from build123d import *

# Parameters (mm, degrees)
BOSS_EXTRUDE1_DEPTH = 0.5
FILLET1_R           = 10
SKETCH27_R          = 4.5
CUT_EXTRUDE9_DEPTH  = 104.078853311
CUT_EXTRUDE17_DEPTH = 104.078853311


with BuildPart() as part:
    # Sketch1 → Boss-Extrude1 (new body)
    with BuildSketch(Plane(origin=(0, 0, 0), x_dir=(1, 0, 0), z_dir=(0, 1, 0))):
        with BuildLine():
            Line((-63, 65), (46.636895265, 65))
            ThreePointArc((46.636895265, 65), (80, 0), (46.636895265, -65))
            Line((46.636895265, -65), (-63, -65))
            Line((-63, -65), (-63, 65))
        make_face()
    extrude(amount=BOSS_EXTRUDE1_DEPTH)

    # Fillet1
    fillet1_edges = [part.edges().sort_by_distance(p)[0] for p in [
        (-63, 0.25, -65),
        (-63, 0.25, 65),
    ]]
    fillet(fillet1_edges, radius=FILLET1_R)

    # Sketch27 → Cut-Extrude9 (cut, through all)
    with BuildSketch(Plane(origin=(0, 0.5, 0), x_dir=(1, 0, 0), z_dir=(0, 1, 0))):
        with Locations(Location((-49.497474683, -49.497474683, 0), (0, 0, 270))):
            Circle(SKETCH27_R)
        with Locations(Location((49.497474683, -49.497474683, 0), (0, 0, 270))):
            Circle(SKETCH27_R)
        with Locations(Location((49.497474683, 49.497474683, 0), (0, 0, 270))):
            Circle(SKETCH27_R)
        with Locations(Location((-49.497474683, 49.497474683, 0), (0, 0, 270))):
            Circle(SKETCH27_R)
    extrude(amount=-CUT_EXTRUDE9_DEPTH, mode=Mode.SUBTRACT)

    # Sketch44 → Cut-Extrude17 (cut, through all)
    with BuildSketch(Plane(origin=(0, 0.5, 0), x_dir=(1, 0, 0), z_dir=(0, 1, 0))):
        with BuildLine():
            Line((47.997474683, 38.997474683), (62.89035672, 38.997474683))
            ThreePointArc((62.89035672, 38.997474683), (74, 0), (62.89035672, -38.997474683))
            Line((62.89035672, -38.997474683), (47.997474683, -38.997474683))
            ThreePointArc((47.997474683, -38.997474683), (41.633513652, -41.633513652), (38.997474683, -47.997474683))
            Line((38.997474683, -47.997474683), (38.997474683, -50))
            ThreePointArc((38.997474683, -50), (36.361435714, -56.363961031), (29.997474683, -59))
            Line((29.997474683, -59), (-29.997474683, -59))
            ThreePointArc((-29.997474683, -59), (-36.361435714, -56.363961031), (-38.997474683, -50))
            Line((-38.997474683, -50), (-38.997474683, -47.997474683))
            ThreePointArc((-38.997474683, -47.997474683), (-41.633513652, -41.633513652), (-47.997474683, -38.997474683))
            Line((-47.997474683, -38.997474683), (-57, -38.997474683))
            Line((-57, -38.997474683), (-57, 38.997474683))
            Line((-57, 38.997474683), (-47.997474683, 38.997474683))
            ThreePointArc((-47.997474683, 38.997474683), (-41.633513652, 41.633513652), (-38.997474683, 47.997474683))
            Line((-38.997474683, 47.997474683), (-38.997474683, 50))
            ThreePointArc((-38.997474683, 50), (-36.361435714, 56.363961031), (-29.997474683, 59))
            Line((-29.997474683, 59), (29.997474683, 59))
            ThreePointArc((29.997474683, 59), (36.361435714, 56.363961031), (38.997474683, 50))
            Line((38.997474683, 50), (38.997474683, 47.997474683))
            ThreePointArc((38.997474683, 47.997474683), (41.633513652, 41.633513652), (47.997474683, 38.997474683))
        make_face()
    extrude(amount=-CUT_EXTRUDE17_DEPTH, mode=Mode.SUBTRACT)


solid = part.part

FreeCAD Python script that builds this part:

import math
import FreeCAD as App
import Part
import Sketcher

V = App.Vector
Q = App.Units.Quantity


def edges_at(feature, points):
    """Names of the edges that pass closest to the given points."""
    edges = feature.Shape.Edges
    near = lambda p: min(range(len(edges)), key=lambda i: edges[i].distToShape(Part.Vertex(*p))[0])
    return sorted({f"Edge{near(p) + 1}" for p in points})

doc = App.newDocument("Part")
body = doc.addObject("PartDesign::Body", "Body")

# Sketch on XZ plane
sketch1 = body.newObject("Sketcher::SketchObject", "Sketch")
sketch1.AttachmentSupport = (doc.getObject("XZ_Plane"), [""])
sketch1.MapMode = "FlatFace"
sketch1.addGeometry(Part.LineSegment(V(46.636895, -65, 0), V(-63, -65, 0)), False)
sketch1.addGeometry(Part.LineSegment(V(-63, -65, 0), V(-63, 65, 0)), False)
sketch1.addGeometry(Part.LineSegment(V(-63, 65, 0), V(46.636895, 65, 0)), False)
sketch1.addGeometry(Part.ArcOfCircle(Part.Circle(V(0, 0, 0), V(0, 0, 1), 80), math.radians(-54.340912), math.radians(54.340912)), False)
sketch1.addConstraint(Sketcher.Constraint("Coincident", 0, 2, 1, 1))
sketch1.addConstraint(Sketcher.Constraint("Coincident", 1, 2, 2, 1))
sketch1.addConstraint(Sketcher.Constraint("Coincident", 2, 2, 3, 2))
sketch1.addConstraint(Sketcher.Constraint("Coincident", 3, 1, 0, 1))
sketch1.addConstraint(Sketcher.Constraint("Horizontal", 0))
sketch1.addConstraint(Sketcher.Constraint("Vertical", 1))
sketch1.addConstraint(Sketcher.Constraint("Horizontal", 2))
sketch1.addConstraint(Sketcher.Constraint("Coincident", 3, 3, -1, 1))
sketch1.addConstraint(Sketcher.Constraint("Vertical", 2, 2, 3, 1))
sketch1.addConstraint(Sketcher.Constraint("Radius", 3, Q("80 mm")))
sketch1.addConstraint(Sketcher.Constraint("DistanceY", 1, 1, 1, 2, Q("130 mm")))
sketch1.addConstraint(Sketcher.Constraint("DistanceX", 0, 2, -1, 1, Q("63 mm")))
pad1 = body.newObject("PartDesign::Pad", "Pad")
pad1.Profile = sketch1
pad1.Length = 0.5
pad1.Reversed = True
doc.recompute()

fillet = body.newObject("PartDesign::Fillet", "Fillet")
fillet.Base = (pad1, edges_at(pad1, [(-63, 0.25, -65), (-63, 0.25, 65)]))
fillet.Radius = 10

# Sketch on XZ plane
sketch2 = body.newObject("Sketcher::SketchObject", "Sketch001")
sketch2.AttachmentSupport = (doc.getObject("XZ_Plane"), [""])
sketch2.MapMode = "FlatFace"
sketch2.AttachmentOffset = App.Placement(V(0, 0, -0.5), App.Rotation())
sketch2.addGeometry(Part.Circle(V(-49.497475, 49.497475, 0), V(0, 0, 1), 4.5), False)
sketch2.addGeometry(Part.Circle(V(49.497475, 49.497475, 0), V(0, 0, 1), 4.5), False)
sketch2.addGeometry(Part.Circle(V(49.497475, -49.497475, 0), V(0, 0, 1), 4.5), False)
sketch2.addGeometry(Part.Circle(V(-49.497475, -49.497475, 0), V(0, 0, 1), 4.5), False)
sketch2.addConstraint(Sketcher.Constraint("Equal", 0, 1))
sketch2.addConstraint(Sketcher.Constraint("Equal", 1, 2))
sketch2.addConstraint(Sketcher.Constraint("Equal", 2, 3))
sketch2.addConstraint(Sketcher.Constraint("Symmetric", 0, 3, 2, 3, -1, 1))
sketch2.addConstraint(Sketcher.Constraint("Symmetric", 1, 3, 3, 3, -1, 1))
sketch2.addConstraint(Sketcher.Constraint("Symmetric", 0, 3, 1, 3, -2))
sketch2.addConstraint(Sketcher.Constraint("Diameter", 0, Q("9 mm")))
sketch2.addConstraint(Sketcher.Constraint("DistanceX", 0, 3, 1, 3, Q("98.994949 mm")))
sketch2.addConstraint(Sketcher.Constraint("DistanceY", 2, 3, 1, 3, Q("98.994949 mm")))
pocket1 = body.newObject("PartDesign::Pocket", "Pocket")
pocket1.Profile = sketch2
pocket1.Type = "ThroughAll"
pocket1.Reversed = True

# Sketch on XZ plane
sketch3 = body.newObject("Sketcher::SketchObject", "Sketch002")
sketch3.AttachmentSupport = (doc.getObject("XZ_Plane"), [""])
sketch3.MapMode = "FlatFace"
sketch3.AttachmentOffset = App.Placement(V(0, 0, -0.5), App.Rotation())
sketch3.addGeometry(Part.LineSegment(V(62.890357, -38.997475, 0), V(47.997475, -38.997475, 0)), False)
sketch3.addGeometry(Part.ArcOfCircle(Part.Circle(V(47.997475, -47.997475, 0), V(0, 0, 1), 9), math.radians(90), math.radians(180)), False)
sketch3.addGeometry(Part.LineSegment(V(38.997475, -47.997475, 0), V(38.997475, -50, 0)), False)
sketch3.addGeometry(Part.ArcOfCircle(Part.Circle(V(29.997475, -50, 0), V(0, 0, 1), 9), math.radians(-90), math.radians(0)), False)
sketch3.addGeometry(Part.LineSegment(V(29.997475, -59, 0), V(-29.997475, -59, 0)), False)
sketch3.addGeometry(Part.ArcOfCircle(Part.Circle(V(-29.997475, -50, 0), V(0, 0, 1), 9), math.radians(180), math.radians(270)), False)
sketch3.addGeometry(Part.LineSegment(V(-38.997475, -50, 0), V(-38.997475, -47.997475, 0)), False)
sketch3.addGeometry(Part.ArcOfCircle(Part.Circle(V(-47.997475, -47.997475, 0), V(0, 0, 1), 9), math.radians(0), math.radians(90)), False)
sketch3.addGeometry(Part.LineSegment(V(-47.997475, -38.997475, 0), V(-57, -38.997475, 0)), False)
sketch3.addGeometry(Part.LineSegment(V(-57, -38.997475, 0), V(-57, 38.997475, 0)), False)
sketch3.addGeometry(Part.LineSegment(V(-57, 38.997475, 0), V(-47.997475, 38.997475, 0)), False)
sketch3.addGeometry(Part.ArcOfCircle(Part.Circle(V(-47.997475, 47.997475, 0), V(0, 0, 1), 9), math.radians(-90), math.radians(0)), False)
sketch3.addGeometry(Part.LineSegment(V(-38.997475, 47.997475, 0), V(-38.997475, 50, 0)), False)
sketch3.addGeometry(Part.ArcOfCircle(Part.Circle(V(-29.997475, 50, 0), V(0, 0, 1), 9), math.radians(90), math.radians(180)), False)
sketch3.addGeometry(Part.LineSegment(V(-29.997475, 59, 0), V(29.997475, 59, 0)), False)
sketch3.addGeometry(Part.ArcOfCircle(Part.Circle(V(29.997475, 50, 0), V(0, 0, 1), 9), math.radians(0), math.radians(90)), False)
sketch3.addGeometry(Part.LineSegment(V(38.997475, 50, 0), V(38.997475, 47.997475, 0)), False)
sketch3.addGeometry(Part.ArcOfCircle(Part.Circle(V(47.997475, 47.997475, 0), V(0, 0, 1), 9), math.radians(180), math.radians(270)), False)
sketch3.addGeometry(Part.LineSegment(V(47.997475, 38.997475, 0), V(62.890357, 38.997475, 0)), False)
sketch3.addGeometry(Part.ArcOfCircle(Part.Circle(V(0, 0, 0), V(0, 0, 1), 74), math.radians(-31.802502), math.radians(31.802502)), False)
sketch3.addConstraint(Sketcher.Constraint("Tangent", 0, 2, 1, 1))
sketch3.addConstraint(Sketcher.Constraint("Tangent", 1, 2, 2, 1))
sketch3.addConstraint(Sketcher.Constraint("Tangent", 2, 2, 3, 2))
sketch3.addConstraint(Sketcher.Constraint("Tangent", 3, 1, 4, 1))
sketch3.addConstraint(Sketcher.Constraint("Tangent", 4, 2, 5, 2))
sketch3.addConstraint(Sketcher.Constraint("Tangent", 5, 1, 6, 1))
sketch3.addConstraint(Sketcher.Constraint("Tangent", 6, 2, 7, 1))
sketch3.addConstraint(Sketcher.Constraint("Tangent", 7, 2, 8, 1))
sketch3.addConstraint(Sketcher.Constraint("Coincident", 8, 2, 9, 1))
sketch3.addConstraint(Sketcher.Constraint("Coincident", 9, 2, 10, 1))
sketch3.addConstraint(Sketcher.Constraint("Tangent", 10, 2, 11, 1))
sketch3.addConstraint(Sketcher.Constraint("Tangent", 11, 2, 12, 1))
sketch3.addConstraint(Sketcher.Constraint("Tangent", 12, 2, 13, 2))
sketch3.addConstraint(Sketcher.Constraint("Tangent", 13, 1, 14, 1))
sketch3.addConstraint(Sketcher.Constraint("Tangent", 14, 2, 15, 2))
sketch3.addConstraint(Sketcher.Constraint("Tangent", 15, 1, 16, 1))
sketch3.addConstraint(Sketcher.Constraint("Tangent", 16, 2, 17, 1))
sketch3.addConstraint(Sketcher.Constraint("Tangent", 17, 2, 18, 1))
sketch3.addConstraint(Sketcher.Constraint("Coincident", 18, 2, 19, 2))
sketch3.addConstraint(Sketcher.Constraint("Coincident", 19, 1, 0, 1))
sketch3.addConstraint(Sketcher.Constraint("Horizontal", 0))
sketch3.addConstraint(Sketcher.Constraint("Vertical", 2))
sketch3.addConstraint(Sketcher.Constraint("Horizontal", 4))
sketch3.addConstraint(Sketcher.Constraint("Vertical", 6))
sketch3.addConstraint(Sketcher.Constraint("Horizontal", 8))
sketch3.addConstraint(Sketcher.Constraint("Vertical", 9))
sketch3.addConstraint(Sketcher.Constraint("Horizontal", 10))
sketch3.addConstraint(Sketcher.Constraint("Vertical", 12))
sketch3.addConstraint(Sketcher.Constraint("Horizontal", 14))
sketch3.addConstraint(Sketcher.Constraint("Vertical", 16))
sketch3.addConstraint(Sketcher.Constraint("Horizontal", 18))
sketch3.addConstraint(Sketcher.Constraint("Coincident", 19, 3, -1, 1))
sketch3.addConstraint(Sketcher.Constraint("Equal", 1, 3))
sketch3.addConstraint(Sketcher.Constraint("Equal", 3, 5))
sketch3.addConstraint(Sketcher.Constraint("Equal", 5, 7))
sketch3.addConstraint(Sketcher.Constraint("Equal", 7, 11))
sketch3.addConstraint(Sketcher.Constraint("Equal", 11, 13))
sketch3.addConstraint(Sketcher.Constraint("Equal", 13, 15))
sketch3.addConstraint(Sketcher.Constraint("Equal", 15, 17))
sketch3.addConstraint(Sketcher.Constraint("Symmetric", 1, 3, 11, 3, -1, 1))
sketch3.addConstraint(Sketcher.Constraint("Symmetric", 5, 3, 15, 3, -1, 1))
sketch3.addConstraint(Sketcher.Constraint("Symmetric", 1, 3, 7, 3, -2))
sketch3.addConstraint(Sketcher.Constraint("Horizontal", 11, 3, 17, 3))
sketch3.addConstraint(Sketcher.Constraint("Radius", 1, Q("9 mm")))
sketch3.addConstraint(Sketcher.Constraint("Radius", 19, Q("74 mm")))
sketch3.addConstraint(Sketcher.Constraint("DistanceY", 3, 3, -1, 1, Q("50 mm")))
sketch3.addConstraint(Sketcher.Constraint("DistanceX", 8, 2, -1, 1, Q("57 mm")))
sketch3.addConstraint(Sketcher.Constraint("DistanceX", 4, 2, 4, 1, Q("59.994949 mm")))
sketch3.addConstraint(Sketcher.Constraint("DistanceY", 9, 1, 9, 2, Q("77.994949 mm")))
pocket2 = body.newObject("PartDesign::Pocket", "Pocket001")
pocket2.Profile = sketch3
pocket2.Type = "ThroughAll"
pocket2.Reversed = True

doc.recompute()
